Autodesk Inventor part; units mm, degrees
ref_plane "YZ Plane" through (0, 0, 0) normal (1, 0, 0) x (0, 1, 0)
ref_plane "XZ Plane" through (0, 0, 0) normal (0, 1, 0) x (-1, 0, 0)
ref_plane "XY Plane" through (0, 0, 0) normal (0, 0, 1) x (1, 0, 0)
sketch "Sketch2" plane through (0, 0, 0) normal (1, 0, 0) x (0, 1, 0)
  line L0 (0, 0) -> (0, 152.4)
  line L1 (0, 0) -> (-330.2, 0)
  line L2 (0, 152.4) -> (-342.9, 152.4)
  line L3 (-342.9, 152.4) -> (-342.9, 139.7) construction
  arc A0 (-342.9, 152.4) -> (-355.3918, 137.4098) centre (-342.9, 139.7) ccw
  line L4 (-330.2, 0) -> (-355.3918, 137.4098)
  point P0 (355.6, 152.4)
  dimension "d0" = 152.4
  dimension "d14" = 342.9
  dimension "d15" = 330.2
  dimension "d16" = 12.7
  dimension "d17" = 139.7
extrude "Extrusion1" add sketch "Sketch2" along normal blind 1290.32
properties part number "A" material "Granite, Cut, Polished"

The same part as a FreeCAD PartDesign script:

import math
import FreeCAD as App
import Part
import Sketcher

V = App.Vector
Q = App.Units.Quantity

doc = App.newDocument("Part")
params = doc.addObject("Spreadsheet::Sheet", "Params")
for row, (alias, value) in enumerate([
    ("sketch1_radius", "0.5 in"),
    ("sketch1_width", "13 in"),
    ("sketch1_height", "6 in"),
    ("sketch1_width2", "13.5 in"),
    ("pad1_length", "50.8 in"),
], start=1):
    params.set(f"A{row}", alias)
    params.set(f"B{row}", "=" + value)
    params.setAlias(f"B{row}", alias)

body = doc.addObject("PartDesign::Body", "Body")

# Sketch on YZ plane
sketch1 = doc.addObject("Sketcher::SketchObject", "Sketch")
body.addObject(sketch1)
sketch1.AttachmentSupport = (doc.YZ_Plane, [""])
sketch1.MapMode = "FlatFace"
sketch1.addGeometry(Part.LineSegment(V(-330, 0, 0), V(0, 0, 0)), False)
sketch1.addGeometry(Part.LineSegment(V(0, 0, 0), V(0, 152, 0)), False)
sketch1.addGeometry(Part.LineSegment(V(0, 152, 0), V(-343, 152, 0)), False)
sketch1.addGeometry(Part.ArcOfCircle(Part.Circle(V(-343, 140, 0), V(0, 0, 1), 13), math.radians(90), math.radians(190)), False)
sketch1.addGeometry(Part.LineSegment(V(-355, 137, 0), V(-330, 0, 0)), False)
sketch1.addConstraint(Sketcher.Constraint("Coincident", 0, 2, 1, 1))
sketch1.addConstraint(Sketcher.Constraint("Coincident", 1, 2, 2, 1))
sketch1.addConstraint(Sketcher.Constraint("Tangent", 2, 2, 3, 1))
sketch1.addConstraint(Sketcher.Constraint("Tangent", 3, 2, 4, 1))
sketch1.addConstraint(Sketcher.Constraint("Coincident", 4, 2, 0, 1))
sketch1.addConstraint(Sketcher.Constraint("Horizontal", 0))
sketch1.addConstraint(Sketcher.Constraint("Vertical", 1))
sketch1.addConstraint(Sketcher.Constraint("Horizontal", 2))
sketch1.addConstraint(Sketcher.Constraint("Coincident", 0, 2, -1, 1))
sketch1.addConstraint(Sketcher.Constraint("Radius", 3, Q("0.5 in")))
sketch1.addConstraint(Sketcher.Constraint("DistanceX", 0, 1, 0, 2, Q("13 in")))
sketch1.addConstraint(Sketcher.Constraint("DistanceY", 1, 1, 1, 2, Q("6 in")))
sketch1.addConstraint(Sketcher.Constraint("DistanceX", 2, 2, 2, 1, Q("13.5 in")))
sketch1.setExpression("Constraints[9]", "Params.sketch1_radius")
sketch1.setExpression("Constraints[10]", "Params.sketch1_width")
sketch1.setExpression("Constraints[11]", "Params.sketch1_height")
sketch1.setExpression("Constraints[12]", "Params.sketch1_width2")
pad1 = doc.addObject("PartDesign::Pad", "Pad")
body.addObject(pad1)
pad1.Profile = sketch1
pad1.setExpression("Length", "Params.pad1_length")

doc.recompute()
